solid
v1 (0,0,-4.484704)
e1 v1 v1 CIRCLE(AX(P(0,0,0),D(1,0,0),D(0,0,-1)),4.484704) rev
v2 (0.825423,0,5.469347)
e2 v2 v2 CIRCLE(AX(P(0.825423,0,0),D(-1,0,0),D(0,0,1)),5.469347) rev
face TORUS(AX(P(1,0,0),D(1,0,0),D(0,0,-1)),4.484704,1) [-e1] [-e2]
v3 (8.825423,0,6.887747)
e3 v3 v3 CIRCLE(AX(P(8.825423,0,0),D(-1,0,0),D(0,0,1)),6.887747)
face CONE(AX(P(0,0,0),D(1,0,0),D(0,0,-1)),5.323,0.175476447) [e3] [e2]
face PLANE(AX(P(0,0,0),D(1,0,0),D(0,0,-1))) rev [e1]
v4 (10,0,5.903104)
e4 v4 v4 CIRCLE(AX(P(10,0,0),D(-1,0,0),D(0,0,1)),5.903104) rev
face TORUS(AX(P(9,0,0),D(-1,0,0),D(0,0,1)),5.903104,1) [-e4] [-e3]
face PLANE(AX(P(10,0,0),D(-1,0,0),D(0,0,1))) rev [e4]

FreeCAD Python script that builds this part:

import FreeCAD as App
import Part
import Sketcher
from FreeCAD import Vector


def edges_at(feature, points):
    """Names of the edges that pass closest to the given points."""
    edges = feature.Shape.Edges
    near = lambda p: min(range(len(edges)), key=lambda i: edges[i].distToShape(Part.Vertex(*p))[0])
    return sorted({f"Edge{near(p) + 1}" for p in points})

doc = App.newDocument("Part")
body = doc.addObject("PartDesign::Body", "Body")

# Sketch on XY plane
sketch1 = doc.addObject("Sketcher::SketchObject", "Sketch")
body.addObject(sketch1)
sketch1.AttachmentSupport = (doc.XY_Plane, [""])
sketch1.MapMode = "FlatFace"
sketch1.addGeometry([
    Part.LineSegment(Vector(0, 5, 0), Vector(0, 0, 0)),
    Part.LineSegment(Vector(0, 0, 0), Vector(10, 0, 0)),
    Part.LineSegment(Vector(10, 0, 0), Vector(10, 7, 0)),
    Part.LineSegment(Vector(10, 7, 0), Vector(0, 5, 0)),
], False)
sketch1.addConstraint([
    Sketcher.Constraint("Coincident", 0, 2, 1, 1),
    Sketcher.Constraint("Coincident", 1, 2, 2, 1),
    Sketcher.Constraint("Coincident", 2, 2, 3, 1),
    Sketcher.Constraint("Coincident", 3, 2, 0, 1),
    Sketcher.Constraint("Vertical", 0),
    Sketcher.Constraint("Horizontal", 1),
    Sketcher.Constraint("Vertical", 2),
    Sketcher.Constraint("Coincident", 0, 2, -1, 1),
    Sketcher.Constraint("DistanceX", 1, 1, 1, 2, 10.0),
    Sketcher.Constraint("DistanceY", 0, 2, 0, 1, 5.323),
    Sketcher.Constraint("DistanceY", 2, 1, 2, 2, 7.096),
])
revolution = doc.addObject("PartDesign::Revolution", "Revolution")
body.addObject(revolution)
revolution.Profile = sketch1
revolution.ReferenceAxis = (sketch1, ["H_Axis"])
revolution.Angle = 360
doc.recompute()

fillet = doc.addObject("PartDesign::Fillet", "Fillet")
body.addObject(fillet)
fillet.Base = (revolution, edges_at(revolution, [(0, 0, 5.323), (10, 0, 7.096)]))
fillet.Radius = 1

doc.recompute()
